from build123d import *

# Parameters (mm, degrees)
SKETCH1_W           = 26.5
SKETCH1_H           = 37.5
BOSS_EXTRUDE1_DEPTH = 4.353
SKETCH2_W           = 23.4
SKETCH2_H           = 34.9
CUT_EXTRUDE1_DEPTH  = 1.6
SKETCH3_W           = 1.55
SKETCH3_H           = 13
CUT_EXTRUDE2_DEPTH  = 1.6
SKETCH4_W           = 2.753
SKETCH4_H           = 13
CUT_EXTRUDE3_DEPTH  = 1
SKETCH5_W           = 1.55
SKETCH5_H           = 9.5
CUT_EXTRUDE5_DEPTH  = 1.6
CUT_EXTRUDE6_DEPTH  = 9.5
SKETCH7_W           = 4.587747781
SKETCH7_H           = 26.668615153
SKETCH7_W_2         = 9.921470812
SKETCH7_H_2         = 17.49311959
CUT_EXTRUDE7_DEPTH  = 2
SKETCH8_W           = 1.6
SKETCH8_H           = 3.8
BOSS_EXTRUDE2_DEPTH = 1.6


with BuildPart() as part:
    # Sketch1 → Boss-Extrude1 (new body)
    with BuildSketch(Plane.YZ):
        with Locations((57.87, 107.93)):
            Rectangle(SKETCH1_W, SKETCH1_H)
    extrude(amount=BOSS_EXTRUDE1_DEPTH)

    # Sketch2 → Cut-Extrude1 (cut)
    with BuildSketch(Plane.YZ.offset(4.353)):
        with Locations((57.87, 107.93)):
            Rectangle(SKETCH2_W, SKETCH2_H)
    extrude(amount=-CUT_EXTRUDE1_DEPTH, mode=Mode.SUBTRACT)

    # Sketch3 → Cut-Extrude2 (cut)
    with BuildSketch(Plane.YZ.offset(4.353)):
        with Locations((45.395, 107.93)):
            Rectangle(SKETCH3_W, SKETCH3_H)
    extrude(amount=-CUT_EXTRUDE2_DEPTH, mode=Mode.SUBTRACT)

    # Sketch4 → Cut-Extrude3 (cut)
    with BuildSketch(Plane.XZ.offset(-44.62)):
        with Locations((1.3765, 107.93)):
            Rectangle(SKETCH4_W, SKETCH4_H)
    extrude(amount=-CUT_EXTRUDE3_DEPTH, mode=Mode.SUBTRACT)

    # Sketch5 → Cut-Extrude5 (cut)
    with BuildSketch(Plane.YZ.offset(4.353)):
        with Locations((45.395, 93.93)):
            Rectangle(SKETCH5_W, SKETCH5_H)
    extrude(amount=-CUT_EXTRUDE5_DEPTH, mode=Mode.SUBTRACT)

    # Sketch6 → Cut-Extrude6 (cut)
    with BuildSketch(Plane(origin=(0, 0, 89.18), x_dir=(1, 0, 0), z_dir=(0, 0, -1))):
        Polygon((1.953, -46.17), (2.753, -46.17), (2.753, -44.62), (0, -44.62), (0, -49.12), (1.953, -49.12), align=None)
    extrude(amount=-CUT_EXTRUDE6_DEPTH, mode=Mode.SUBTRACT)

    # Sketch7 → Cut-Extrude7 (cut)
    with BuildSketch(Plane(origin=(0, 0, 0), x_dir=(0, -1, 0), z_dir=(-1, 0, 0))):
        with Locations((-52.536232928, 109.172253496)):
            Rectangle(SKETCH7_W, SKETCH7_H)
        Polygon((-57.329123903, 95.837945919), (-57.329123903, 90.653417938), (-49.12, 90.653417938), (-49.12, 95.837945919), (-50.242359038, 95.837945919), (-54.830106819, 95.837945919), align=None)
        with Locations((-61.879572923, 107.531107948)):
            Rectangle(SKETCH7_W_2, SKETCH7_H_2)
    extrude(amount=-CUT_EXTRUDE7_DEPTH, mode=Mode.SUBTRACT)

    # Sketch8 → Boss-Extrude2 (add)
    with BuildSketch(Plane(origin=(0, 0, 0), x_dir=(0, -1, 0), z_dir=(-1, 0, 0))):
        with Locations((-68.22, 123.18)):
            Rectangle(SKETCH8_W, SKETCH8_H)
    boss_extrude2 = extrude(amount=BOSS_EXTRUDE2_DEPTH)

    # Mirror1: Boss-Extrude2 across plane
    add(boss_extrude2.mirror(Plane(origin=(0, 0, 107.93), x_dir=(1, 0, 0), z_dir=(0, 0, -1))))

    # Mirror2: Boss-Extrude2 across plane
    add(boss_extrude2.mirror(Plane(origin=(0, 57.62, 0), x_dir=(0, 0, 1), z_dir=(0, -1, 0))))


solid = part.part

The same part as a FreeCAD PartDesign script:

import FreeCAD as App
import Part
import Sketcher


def add_polygon(sketch, points):
    """Adds a closed chain of lines whose ends are joined by coincident constraints."""
    first, n = sketch.GeometryCount, len(points)
    for a, b in zip(points, points[1:] + points[:1]):
        sketch.addGeometry(Part.LineSegment(App.Vector(*a, 0), App.Vector(*b, 0)), False)
    for i in range(n):
        sketch.addConstraint(Sketcher.Constraint("Coincident", first + i, 2, first + (i + 1) % n, 1))

doc = App.newDocument("Part")
body = doc.addObject("PartDesign::Body", "Body")

# Sketch on YZ plane
sketch1 = body.newObject("Sketcher::SketchObject", "Sketch")
sketch1.AttachmentSupport = (doc.getObject("YZ_Plane"), [""])
sketch1.MapMode = "FlatFace"
add_polygon(sketch1, [(45, 127), (45, 89), (71, 89), (71, 127)])  # lines 0-3
sketch1.addConstraint(Sketcher.Constraint("Vertical", 0))
sketch1.addConstraint(Sketcher.Constraint("Horizontal", 1))
sketch1.addConstraint(Sketcher.Constraint("Vertical", 2))
sketch1.addConstraint(Sketcher.Constraint("Horizontal", 3))
sketch1.addConstraint(Sketcher.Constraint("DistanceX", 1, 1, 1, 2, 26.5))
sketch1.addConstraint(Sketcher.Constraint("DistanceY", 0, 2, 0, 1, 37.5))
sketch1.addConstraint(Sketcher.Constraint("DistanceX", -1, 1, 0, 2, 44.62))
sketch1.addConstraint(Sketcher.Constraint("DistanceY", -1, 1, 0, 2, 89.18))
pad1 = body.newObject("PartDesign::Pad", "Pad")
pad1.Profile = sketch1
pad1.Length = 4.353

# Sketch on YZ plane
sketch2 = body.newObject("Sketcher::SketchObject", "Sketch001")
sketch2.AttachmentSupport = (doc.getObject("YZ_Plane"), [""])
sketch2.MapMode = "FlatFace"
sketch2.AttachmentOffset = App.Placement(App.Vector(0, 0, 4.353), App.Rotation())
add_polygon(sketch2, [(46, 125), (46, 90), (70, 90), (70, 125)])  # lines 0-3
sketch2.addConstraint(Sketcher.Constraint("Vertical", 0))
sketch2.addConstraint(Sketcher.Constraint("Horizontal", 1))
sketch2.addConstraint(Sketcher.Constraint("Vertical", 2))
sketch2.addConstraint(Sketcher.Constraint("Horizontal", 3))
sketch2.addConstraint(Sketcher.Constraint("DistanceX", 1, 1, 1, 2, 23.4))
sketch2.addConstraint(Sketcher.Constraint("DistanceY", 0, 2, 0, 1, 34.9))
sketch2.addConstraint(Sketcher.Constraint("DistanceX", -1, 1, 0, 2, 46.17))
sketch2.addConstraint(Sketcher.Constraint("DistanceY", -1, 1, 0, 2, 90.48))
pocket1 = body.newObject("PartDesign::Pocket", "Pocket")
pocket1.Profile = sketch2
pocket1.Length = 1.6

# Sketch on YZ plane
sketch3 = body.newObject("Sketcher::SketchObject", "Sketch002")
sketch3.AttachmentSupport = (doc.getObject("YZ_Plane"), [""])
sketch3.MapMode = "FlatFace"
sketch3.AttachmentOffset = App.Placement(App.Vector(0, 0, 4.353), App.Rotation())
add_polygon(sketch3, [(44.6, 114.4), (44.6, 101.4), (46.2, 101.4), (46.2, 114.4)])  # lines 0-3
sketch3.addConstraint(Sketcher.Constraint("Vertical", 0))
sketch3.addConstraint(Sketcher.Constraint("Horizontal", 1))
sketch3.addConstraint(Sketcher.Constraint("Vertical", 2))
sketch3.addConstraint(Sketcher.Constraint("Horizontal", 3))
sketch3.addConstraint(Sketcher.Constraint("DistanceY", 0, 2, 0, 1, 13.0))
sketch3.addConstraint(Sketcher.Constraint("DistanceX", 1, 1, 1, 2, 1.55))
sketch3.addConstraint(Sketcher.Constraint("DistanceX", -1, 1, 0, 2, 44.62))
sketch3.addConstraint(Sketcher.Constraint("DistanceY", -1, 1, 0, 2, 101.43))
pocket2 = body.newObject("PartDesign::Pocket", "Pocket001")
pocket2.Profile = sketch3
pocket2.Length = 1.6

# Sketch on XZ plane
sketch4 = body.newObject("Sketcher::SketchObject", "Sketch003")
sketch4.AttachmentSupport = (doc.getObject("XZ_Plane"), [""])
sketch4.MapMode = "FlatFace"
sketch4.AttachmentOffset = App.Placement(App.Vector(0, 0, -44.62), App.Rotation())
add_polygon(sketch4, [(0, 114.4), (0, 101.4), (2.8, 101.4), (2.8, 114.4)])  # lines 0-3
sketch4.addConstraint(Sketcher.Constraint("Vertical", 0))
sketch4.addConstraint(Sketcher.Constraint("Horizontal", 1))
sketch4.addConstraint(Sketcher.Constraint("Vertical", 2))
sketch4.addConstraint(Sketcher.Constraint("Horizontal", 3))
sketch4.addConstraint(Sketcher.Constraint("PointOnObject", 0, 2, -2))
sketch4.addConstraint(Sketcher.Constraint("DistanceY", 0, 2, 0, 1, 13.0))
sketch4.addConstraint(Sketcher.Constraint("DistanceX", 1, 1, 1, 2, 2.753))
sketch4.addConstraint(Sketcher.Constraint("DistanceY", -1, 1, 0, 2, 101.43))
pocket3 = body.newObject("PartDesign::Pocket", "Pocket002")
pocket3.Profile = sketch4
pocket3.Length = 1

# Sketch on YZ plane
sketch5 = body.newObject("Sketcher::SketchObject", "Sketch004")
sketch5.AttachmentSupport = (doc.getObject("YZ_Plane"), [""])
sketch5.MapMode = "FlatFace"
sketch5.AttachmentOffset = App.Placement(App.Vector(0, 0, 4.353), App.Rotation())
add_polygon(sketch5, [(44.6, 98.7), (44.6, 89.2), (46.2, 89.2), (46.2, 98.7)])  # lines 0-3
sketch5.addConstraint(Sketcher.Constraint("Vertical", 0))
sketch5.addConstraint(Sketcher.Constraint("Horizontal", 1))
sketch5.addConstraint(Sketcher.Constraint("Vertical", 2))
sketch5.addConstraint(Sketcher.Constraint("Horizontal", 3))
sketch5.addConstraint(Sketcher.Constraint("DistanceY", 0, 2, 0, 1, 9.5))
sketch5.addConstraint(Sketcher.Constraint("DistanceX", 1, 1, 1, 2, 1.55))
sketch5.addConstraint(Sketcher.Constraint("DistanceX", -1, 1, 0, 2, 44.62))
sketch5.addConstraint(Sketcher.Constraint("DistanceY", -1, 1, 0, 2, 89.18))
pocket4 = body.newObject("PartDesign::Pocket", "Pocket003")
pocket4.Profile = sketch5
pocket4.Length = 1.6

# Sketch on XY plane
sketch6 = body.newObject("Sketcher::SketchObject", "Sketch005")
sketch6.AttachmentSupport = (doc.getObject("XY_Plane"), [""])
sketch6.MapMode = "FlatFace"
sketch6.AttachmentOffset = App.Placement(App.Vector(0, 0, 89.18), App.Rotation())
add_polygon(sketch6, [(2, 46.2), (2.8, 46.2), (2.8, 44.6), (0, 44.6), (0, 49.1), (2, 49.1)])  # lines 0-5
sketch6.addConstraint(Sketcher.Constraint("Horizontal", 0))
sketch6.addConstraint(Sketcher.Constraint("Vertical", 1))
sketch6.addConstraint(Sketcher.Constraint("Horizontal", 2))
sketch6.addConstraint(Sketcher.Constraint("Vertical", 3))
sketch6.addConstraint(Sketcher.Constraint("Horizontal", 4))
sketch6.addConstraint(Sketcher.Constraint("Vertical", 5))
sketch6.addConstraint(Sketcher.Constraint("PointOnObject", 2, 2, -2))
sketch6.addConstraint(Sketcher.Constraint("DistanceX", 0, 1, 0, 2, 0.8))
sketch6.addConstraint(Sketcher.Constraint("DistanceY", 3, 1, 3, 2, 4.5))
sketch6.addConstraint(Sketcher.Constraint("DistanceY", 1, 2, 1, 1, 1.55))
sketch6.addConstraint(Sketcher.Constraint("DistanceX", 2, 2, 2, 1, 2.753))
sketch6.addConstraint(Sketcher.Constraint("DistanceY", -1, 1, 0, 2, 46.17))
pocket5 = body.newObject("PartDesign::Pocket", "Pocket004")
pocket5.Profile = sketch6
pocket5.Length = 9.5
pocket5.Reversed = True

# Sketch on YZ plane
sketch7 = body.newObject("Sketcher::SketchObject", "Sketch006")
sketch7.AttachmentSupport = (doc.getObject("YZ_Plane"), [""])
sketch7.MapMode = "FlatFace"
add_polygon(sketch7, [(54.8, 122.5), (54.8, 95.8), (57.3, 95.8), (57.3, 90.7), (49.1, 90.7), (49.1, 95.8), (50.2, 95.8), (50.2, 122.5)])  # lines 0-7
add_polygon(sketch7, [(66.8, 116.3), (66.8, 98.8), (56.9, 98.8), (56.9, 116.3)])  # lines 8-11
sketch7.addConstraint(Sketcher.Constraint("Vertical", 0))
sketch7.addConstraint(Sketcher.Constraint("Horizontal", 1))
sketch7.addConstraint(Sketcher.Constraint("Vertical", 2))
sketch7.addConstraint(Sketcher.Constraint("Horizontal", 3))
sketch7.addConstraint(Sketcher.Constraint("Vertical", 4))
sketch7.addConstraint(Sketcher.Constraint("Horizontal", 5))
sketch7.addConstraint(Sketcher.Constraint("Vertical", 6))
sketch7.addConstraint(Sketcher.Constraint("Horizontal", 7))
sketch7.addConstraint(Sketcher.Constraint("Vertical", 8))
sketch7.addConstraint(Sketcher.Constraint("Horizontal", 9))
sketch7.addConstraint(Sketcher.Constraint("Vertical", 10))
sketch7.addConstraint(Sketcher.Constraint("Horizontal", 11))
sketch7.addConstraint(Sketcher.Constraint("Horizontal", 1, 2, 4, 2))
sketch7.addConstraint(Sketcher.Constraint("DistanceX", -1, 1, 3, 2, 49.12))
sketch7.addConstraint(Sketcher.Constraint("DistanceX", 5, 1, 5, 2, 1.122359))
sketch7.addConstraint(Sketcher.Constraint("DistanceX", 9, 2, 9, 1, 9.921471))
sketch7.addConstraint(Sketcher.Constraint("DistanceY", 8, 2, 8, 1, 17.49312))
sketch7.addConstraint(Sketcher.Constraint("DistanceX", 0, 2, 8, 2, 12.010202))
sketch7.addConstraint(Sketcher.Constraint("DistanceX", 1, 1, 1, 2, 2.499017))
sketch7.addConstraint(Sketcher.Constraint("DistanceX", 3, 2, 3, 1, 8.209124))
sketch7.addConstraint(Sketcher.Constraint("DistanceY", 0, 2, 0, 1, 26.668615))
sketch7.addConstraint(Sketcher.Constraint("DistanceY", 2, 2, 2, 1, 5.184528))
sketch7.addConstraint(Sketcher.Constraint("DistanceY", -1, 1, 6, 2, 122.506561))
sketch7.addConstraint(Sketcher.Constraint("DistanceY", -1, 1, 8, 2, 98.784548))
pocket6 = body.newObject("PartDesign::Pocket", "Pocket005")
pocket6.Profile = sketch7
pocket6.Length = 2
pocket6.Reversed = True

# Sketch on YZ plane
sketch8 = body.newObject("Sketcher::SketchObject", "Sketch007")
sketch8.AttachmentSupport = (doc.getObject("YZ_Plane"), [""])
sketch8.MapMode = "FlatFace"
add_polygon(sketch8, [(69, 125.1), (69, 121.3), (67.4, 121.3), (67.4, 125.1)])  # lines 0-3
sketch8.addConstraint(Sketcher.Constraint("Vertical", 0))
sketch8.addConstraint(Sketcher.Constraint("Horizontal", 1))
sketch8.addConstraint(Sketcher.Constraint("Vertical", 2))
sketch8.addConstraint(Sketcher.Constraint("Horizontal", 3))
sketch8.addConstraint(Sketcher.Constraint("DistanceX", 1, 2, 1, 1, 1.6))
sketch8.addConstraint(Sketcher.Constraint("DistanceY", 0, 2, 0, 1, 3.8))
sketch8.addConstraint(Sketcher.Constraint("DistanceX", -1, 1, 0, 2, 69.02))
sketch8.addConstraint(Sketcher.Constraint("DistanceY", -1, 1, 0, 2, 121.28))
pad2 = body.newObject("PartDesign::Pad", "Pad001")
pad2.Profile = sketch8
pad2.Length = 1.6
pad2.Reversed = True
doc.recompute()

datumplane = body.newObject("PartDesign::Plane", "DatumPlane")
datumplane.AttachmentSupport = (doc.getObject("XY_Plane"), [""])
datumplane.MapMode = "FlatFace"
datumplane.AttachmentOffset = App.Placement(App.Vector(0, 0, 107.93), App.Rotation())
mirrored = body.newObject("PartDesign::Mirrored", "Mirrored")
mirrored.Originals = [pad2]
mirrored.MirrorPlane = (datumplane, [""])
body.Tip = mirrored
doc.recompute()

datumplane2 = body.newObject("PartDesign::Plane", "DatumPlane001")
datumplane2.AttachmentSupport = (doc.getObject("XZ_Plane"), [""])
datumplane2.MapMode = "FlatFace"
datumplane2.AttachmentOffset = App.Placement(App.Vector(0, 0, -57.62), App.Rotation())
mirrored2 = body.newObject("PartDesign::Mirrored", "Mirrored001")
mirrored2.Originals = [pad2]
mirrored2.MirrorPlane = (datumplane2, [""])
body.Tip = mirrored2

doc.recompute()
